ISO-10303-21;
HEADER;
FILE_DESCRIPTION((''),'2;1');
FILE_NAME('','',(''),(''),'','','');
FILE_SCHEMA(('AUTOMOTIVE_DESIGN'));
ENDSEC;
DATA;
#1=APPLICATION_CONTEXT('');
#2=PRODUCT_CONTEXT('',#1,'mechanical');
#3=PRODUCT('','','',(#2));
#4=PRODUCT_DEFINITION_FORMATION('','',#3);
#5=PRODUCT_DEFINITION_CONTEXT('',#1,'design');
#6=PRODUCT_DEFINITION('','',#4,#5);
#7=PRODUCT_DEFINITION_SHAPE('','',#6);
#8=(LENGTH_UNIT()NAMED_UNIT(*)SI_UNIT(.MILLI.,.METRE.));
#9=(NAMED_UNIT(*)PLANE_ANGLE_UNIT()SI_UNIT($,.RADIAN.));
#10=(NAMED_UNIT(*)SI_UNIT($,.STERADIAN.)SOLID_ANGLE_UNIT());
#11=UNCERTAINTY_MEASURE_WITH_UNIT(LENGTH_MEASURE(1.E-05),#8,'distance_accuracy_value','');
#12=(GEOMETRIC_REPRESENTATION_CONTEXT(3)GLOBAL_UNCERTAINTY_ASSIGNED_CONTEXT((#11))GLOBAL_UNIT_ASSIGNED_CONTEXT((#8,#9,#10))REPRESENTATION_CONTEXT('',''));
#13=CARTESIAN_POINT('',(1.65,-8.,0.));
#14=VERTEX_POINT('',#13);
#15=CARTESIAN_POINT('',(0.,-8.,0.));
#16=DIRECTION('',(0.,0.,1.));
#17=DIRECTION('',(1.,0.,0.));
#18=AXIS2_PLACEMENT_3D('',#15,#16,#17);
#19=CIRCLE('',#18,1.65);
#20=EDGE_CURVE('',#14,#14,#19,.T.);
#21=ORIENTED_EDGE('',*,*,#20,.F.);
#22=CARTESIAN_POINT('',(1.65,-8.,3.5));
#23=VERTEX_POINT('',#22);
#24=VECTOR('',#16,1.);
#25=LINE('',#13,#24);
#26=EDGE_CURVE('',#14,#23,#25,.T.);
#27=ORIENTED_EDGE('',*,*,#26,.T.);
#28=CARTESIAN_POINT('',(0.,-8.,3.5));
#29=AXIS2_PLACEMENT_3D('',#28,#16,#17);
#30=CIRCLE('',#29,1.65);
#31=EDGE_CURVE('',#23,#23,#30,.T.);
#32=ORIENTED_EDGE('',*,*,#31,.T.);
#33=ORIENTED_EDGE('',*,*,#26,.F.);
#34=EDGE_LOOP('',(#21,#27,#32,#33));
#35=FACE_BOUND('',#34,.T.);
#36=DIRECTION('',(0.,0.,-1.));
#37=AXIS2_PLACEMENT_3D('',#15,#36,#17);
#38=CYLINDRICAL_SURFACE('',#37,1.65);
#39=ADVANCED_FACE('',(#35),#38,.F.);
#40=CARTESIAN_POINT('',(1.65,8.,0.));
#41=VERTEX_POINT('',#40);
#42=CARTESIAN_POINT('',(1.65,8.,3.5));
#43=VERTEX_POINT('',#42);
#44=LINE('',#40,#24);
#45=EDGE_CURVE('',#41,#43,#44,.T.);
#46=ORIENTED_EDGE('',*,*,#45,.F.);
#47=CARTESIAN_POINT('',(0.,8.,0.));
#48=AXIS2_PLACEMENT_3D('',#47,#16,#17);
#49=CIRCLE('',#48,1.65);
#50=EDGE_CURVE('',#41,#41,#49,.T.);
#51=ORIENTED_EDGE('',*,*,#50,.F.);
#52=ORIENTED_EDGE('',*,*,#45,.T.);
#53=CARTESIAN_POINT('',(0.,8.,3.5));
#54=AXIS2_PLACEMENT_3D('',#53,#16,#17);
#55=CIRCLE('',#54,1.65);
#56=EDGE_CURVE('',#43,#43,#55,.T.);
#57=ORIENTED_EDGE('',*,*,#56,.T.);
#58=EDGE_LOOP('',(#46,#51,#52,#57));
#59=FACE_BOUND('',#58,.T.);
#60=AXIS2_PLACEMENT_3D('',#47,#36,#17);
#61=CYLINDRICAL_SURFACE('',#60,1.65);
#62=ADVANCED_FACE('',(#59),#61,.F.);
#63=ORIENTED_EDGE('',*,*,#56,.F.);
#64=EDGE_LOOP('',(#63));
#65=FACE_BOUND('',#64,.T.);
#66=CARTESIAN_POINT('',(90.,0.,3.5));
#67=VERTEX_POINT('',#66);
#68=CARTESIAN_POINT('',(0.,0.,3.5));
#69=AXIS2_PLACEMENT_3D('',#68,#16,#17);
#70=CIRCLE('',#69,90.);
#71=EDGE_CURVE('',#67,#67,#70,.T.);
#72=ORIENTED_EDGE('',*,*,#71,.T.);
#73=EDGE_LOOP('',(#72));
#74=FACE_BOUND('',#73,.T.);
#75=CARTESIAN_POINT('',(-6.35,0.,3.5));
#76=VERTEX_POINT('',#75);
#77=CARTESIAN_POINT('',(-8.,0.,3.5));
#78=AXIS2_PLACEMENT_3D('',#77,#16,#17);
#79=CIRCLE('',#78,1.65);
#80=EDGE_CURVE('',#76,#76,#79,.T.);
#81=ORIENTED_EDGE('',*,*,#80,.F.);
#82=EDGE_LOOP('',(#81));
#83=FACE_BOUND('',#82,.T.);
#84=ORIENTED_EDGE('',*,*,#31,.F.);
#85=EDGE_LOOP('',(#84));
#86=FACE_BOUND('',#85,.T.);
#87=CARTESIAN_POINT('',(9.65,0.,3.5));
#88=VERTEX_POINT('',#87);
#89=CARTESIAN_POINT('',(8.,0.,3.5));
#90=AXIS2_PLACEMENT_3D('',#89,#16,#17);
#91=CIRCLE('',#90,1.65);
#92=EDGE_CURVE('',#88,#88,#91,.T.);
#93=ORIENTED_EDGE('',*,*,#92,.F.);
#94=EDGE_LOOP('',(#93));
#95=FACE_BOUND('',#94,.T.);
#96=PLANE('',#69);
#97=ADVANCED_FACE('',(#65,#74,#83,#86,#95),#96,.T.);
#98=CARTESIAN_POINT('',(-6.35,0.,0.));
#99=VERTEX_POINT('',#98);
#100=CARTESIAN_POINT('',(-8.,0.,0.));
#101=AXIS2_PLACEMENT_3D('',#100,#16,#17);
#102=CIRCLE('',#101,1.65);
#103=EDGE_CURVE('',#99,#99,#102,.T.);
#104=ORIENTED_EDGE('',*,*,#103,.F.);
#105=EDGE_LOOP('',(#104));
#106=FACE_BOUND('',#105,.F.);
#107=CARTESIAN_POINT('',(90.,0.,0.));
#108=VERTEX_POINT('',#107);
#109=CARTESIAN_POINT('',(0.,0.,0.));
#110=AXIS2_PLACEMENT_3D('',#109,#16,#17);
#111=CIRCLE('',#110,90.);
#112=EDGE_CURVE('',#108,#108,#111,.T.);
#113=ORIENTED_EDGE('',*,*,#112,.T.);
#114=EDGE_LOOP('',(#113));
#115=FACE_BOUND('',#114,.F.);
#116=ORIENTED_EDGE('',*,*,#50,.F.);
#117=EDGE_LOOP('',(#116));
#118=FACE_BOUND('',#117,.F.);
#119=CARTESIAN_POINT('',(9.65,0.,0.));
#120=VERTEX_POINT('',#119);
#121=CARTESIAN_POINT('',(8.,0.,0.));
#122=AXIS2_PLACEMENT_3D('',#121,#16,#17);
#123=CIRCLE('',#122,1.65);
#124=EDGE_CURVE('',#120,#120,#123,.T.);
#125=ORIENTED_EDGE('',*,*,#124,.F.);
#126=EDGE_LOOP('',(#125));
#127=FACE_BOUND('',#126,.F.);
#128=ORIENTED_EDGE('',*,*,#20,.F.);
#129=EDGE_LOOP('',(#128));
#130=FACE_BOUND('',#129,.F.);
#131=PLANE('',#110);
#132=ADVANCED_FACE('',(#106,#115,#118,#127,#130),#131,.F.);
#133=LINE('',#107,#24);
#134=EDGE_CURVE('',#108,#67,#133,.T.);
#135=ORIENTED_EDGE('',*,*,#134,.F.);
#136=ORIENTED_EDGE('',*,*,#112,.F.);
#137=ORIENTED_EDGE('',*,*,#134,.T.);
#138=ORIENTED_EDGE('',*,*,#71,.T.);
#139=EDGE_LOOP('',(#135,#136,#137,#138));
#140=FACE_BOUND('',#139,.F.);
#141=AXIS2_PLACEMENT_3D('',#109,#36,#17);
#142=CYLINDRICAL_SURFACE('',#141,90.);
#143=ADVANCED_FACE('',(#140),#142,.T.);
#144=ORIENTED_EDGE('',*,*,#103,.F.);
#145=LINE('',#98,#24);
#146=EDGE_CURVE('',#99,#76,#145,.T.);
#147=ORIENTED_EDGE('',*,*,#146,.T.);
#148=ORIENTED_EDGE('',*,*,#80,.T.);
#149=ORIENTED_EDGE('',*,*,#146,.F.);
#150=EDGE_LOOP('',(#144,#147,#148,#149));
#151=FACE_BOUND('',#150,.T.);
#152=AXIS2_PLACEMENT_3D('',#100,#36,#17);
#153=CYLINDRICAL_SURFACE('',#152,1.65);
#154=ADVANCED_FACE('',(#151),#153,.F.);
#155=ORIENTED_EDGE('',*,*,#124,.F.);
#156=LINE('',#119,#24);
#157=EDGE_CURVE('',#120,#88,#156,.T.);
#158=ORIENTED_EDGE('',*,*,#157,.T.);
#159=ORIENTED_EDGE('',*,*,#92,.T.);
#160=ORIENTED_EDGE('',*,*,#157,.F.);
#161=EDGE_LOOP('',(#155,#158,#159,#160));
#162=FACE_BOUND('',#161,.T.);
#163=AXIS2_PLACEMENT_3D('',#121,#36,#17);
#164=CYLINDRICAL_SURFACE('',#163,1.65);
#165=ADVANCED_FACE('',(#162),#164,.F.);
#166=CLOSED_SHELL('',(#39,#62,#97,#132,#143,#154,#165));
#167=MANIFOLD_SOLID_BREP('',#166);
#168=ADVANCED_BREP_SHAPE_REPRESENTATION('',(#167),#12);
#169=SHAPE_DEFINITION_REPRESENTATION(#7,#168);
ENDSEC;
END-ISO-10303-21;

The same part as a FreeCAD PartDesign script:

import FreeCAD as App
import Part
import Sketcher

V = App.Vector
Q = App.Units.Quantity

doc = App.newDocument("Part")
body = doc.addObject("PartDesign::Body", "Body")

# Sketch on XY plane
sketch1 = body.newObject("Sketcher::SketchObject", "Sketch")
sketch1.AttachmentSupport = (doc.getObject("XY_Plane"), [""])
sketch1.MapMode = "FlatFace"
sketch1.addGeometry(Part.Circle(V(0, 0, 0), V(0, 0, 1), 90), False)
sketch1.addGeometry(Part.Circle(V(0, -8, 0), V(0, 0, 1), 1.6), False)
sketch1.addGeometry(Part.Circle(V(-8, 0, 0), V(0, 0, 1), 1.6), False)
sketch1.addGeometry(Part.Circle(V(8, 0, 0), V(0, 0, 1), 1.6), False)
sketch1.addGeometry(Part.Circle(V(0, 8, 0), V(0, 0, 1), 1.6), False)
sketch1.addConstraint(Sketcher.Constraint("Coincident", 0, 3, -1, 1))
sketch1.addConstraint(Sketcher.Constraint("Equal", 1, 2))
sketch1.addConstraint(Sketcher.Constraint("Equal", 2, 3))
sketch1.addConstraint(Sketcher.Constraint("Equal", 3, 4))
sketch1.addConstraint(Sketcher.Constraint("Symmetric", 2, 3, 3, 3, -1, 1))
sketch1.addConstraint(Sketcher.Constraint("Symmetric", 1, 3, 4, 3, -1, 1))
sketch1.addConstraint(Sketcher.Constraint("PointOnObject", 1, 3, -2))
sketch1.addConstraint(Sketcher.Constraint("PointOnObject", 2, 3, -1))
sketch1.addConstraint(Sketcher.Constraint("Diameter", 0, Q("180 mm")))
sketch1.addConstraint(Sketcher.Constraint("Diameter", 1, Q("3.3 mm")))
sketch1.addConstraint(Sketcher.Constraint("DistanceY", 1, 3, -1, 1, Q("8 mm")))
sketch1.addConstraint(Sketcher.Constraint("DistanceX", 2, 3, -1, 1, Q("8 mm")))
pad1 = body.newObject("PartDesign::Pad", "Pad")
pad1.Profile = sketch1
pad1.Length = 3.5

doc.recompute()
